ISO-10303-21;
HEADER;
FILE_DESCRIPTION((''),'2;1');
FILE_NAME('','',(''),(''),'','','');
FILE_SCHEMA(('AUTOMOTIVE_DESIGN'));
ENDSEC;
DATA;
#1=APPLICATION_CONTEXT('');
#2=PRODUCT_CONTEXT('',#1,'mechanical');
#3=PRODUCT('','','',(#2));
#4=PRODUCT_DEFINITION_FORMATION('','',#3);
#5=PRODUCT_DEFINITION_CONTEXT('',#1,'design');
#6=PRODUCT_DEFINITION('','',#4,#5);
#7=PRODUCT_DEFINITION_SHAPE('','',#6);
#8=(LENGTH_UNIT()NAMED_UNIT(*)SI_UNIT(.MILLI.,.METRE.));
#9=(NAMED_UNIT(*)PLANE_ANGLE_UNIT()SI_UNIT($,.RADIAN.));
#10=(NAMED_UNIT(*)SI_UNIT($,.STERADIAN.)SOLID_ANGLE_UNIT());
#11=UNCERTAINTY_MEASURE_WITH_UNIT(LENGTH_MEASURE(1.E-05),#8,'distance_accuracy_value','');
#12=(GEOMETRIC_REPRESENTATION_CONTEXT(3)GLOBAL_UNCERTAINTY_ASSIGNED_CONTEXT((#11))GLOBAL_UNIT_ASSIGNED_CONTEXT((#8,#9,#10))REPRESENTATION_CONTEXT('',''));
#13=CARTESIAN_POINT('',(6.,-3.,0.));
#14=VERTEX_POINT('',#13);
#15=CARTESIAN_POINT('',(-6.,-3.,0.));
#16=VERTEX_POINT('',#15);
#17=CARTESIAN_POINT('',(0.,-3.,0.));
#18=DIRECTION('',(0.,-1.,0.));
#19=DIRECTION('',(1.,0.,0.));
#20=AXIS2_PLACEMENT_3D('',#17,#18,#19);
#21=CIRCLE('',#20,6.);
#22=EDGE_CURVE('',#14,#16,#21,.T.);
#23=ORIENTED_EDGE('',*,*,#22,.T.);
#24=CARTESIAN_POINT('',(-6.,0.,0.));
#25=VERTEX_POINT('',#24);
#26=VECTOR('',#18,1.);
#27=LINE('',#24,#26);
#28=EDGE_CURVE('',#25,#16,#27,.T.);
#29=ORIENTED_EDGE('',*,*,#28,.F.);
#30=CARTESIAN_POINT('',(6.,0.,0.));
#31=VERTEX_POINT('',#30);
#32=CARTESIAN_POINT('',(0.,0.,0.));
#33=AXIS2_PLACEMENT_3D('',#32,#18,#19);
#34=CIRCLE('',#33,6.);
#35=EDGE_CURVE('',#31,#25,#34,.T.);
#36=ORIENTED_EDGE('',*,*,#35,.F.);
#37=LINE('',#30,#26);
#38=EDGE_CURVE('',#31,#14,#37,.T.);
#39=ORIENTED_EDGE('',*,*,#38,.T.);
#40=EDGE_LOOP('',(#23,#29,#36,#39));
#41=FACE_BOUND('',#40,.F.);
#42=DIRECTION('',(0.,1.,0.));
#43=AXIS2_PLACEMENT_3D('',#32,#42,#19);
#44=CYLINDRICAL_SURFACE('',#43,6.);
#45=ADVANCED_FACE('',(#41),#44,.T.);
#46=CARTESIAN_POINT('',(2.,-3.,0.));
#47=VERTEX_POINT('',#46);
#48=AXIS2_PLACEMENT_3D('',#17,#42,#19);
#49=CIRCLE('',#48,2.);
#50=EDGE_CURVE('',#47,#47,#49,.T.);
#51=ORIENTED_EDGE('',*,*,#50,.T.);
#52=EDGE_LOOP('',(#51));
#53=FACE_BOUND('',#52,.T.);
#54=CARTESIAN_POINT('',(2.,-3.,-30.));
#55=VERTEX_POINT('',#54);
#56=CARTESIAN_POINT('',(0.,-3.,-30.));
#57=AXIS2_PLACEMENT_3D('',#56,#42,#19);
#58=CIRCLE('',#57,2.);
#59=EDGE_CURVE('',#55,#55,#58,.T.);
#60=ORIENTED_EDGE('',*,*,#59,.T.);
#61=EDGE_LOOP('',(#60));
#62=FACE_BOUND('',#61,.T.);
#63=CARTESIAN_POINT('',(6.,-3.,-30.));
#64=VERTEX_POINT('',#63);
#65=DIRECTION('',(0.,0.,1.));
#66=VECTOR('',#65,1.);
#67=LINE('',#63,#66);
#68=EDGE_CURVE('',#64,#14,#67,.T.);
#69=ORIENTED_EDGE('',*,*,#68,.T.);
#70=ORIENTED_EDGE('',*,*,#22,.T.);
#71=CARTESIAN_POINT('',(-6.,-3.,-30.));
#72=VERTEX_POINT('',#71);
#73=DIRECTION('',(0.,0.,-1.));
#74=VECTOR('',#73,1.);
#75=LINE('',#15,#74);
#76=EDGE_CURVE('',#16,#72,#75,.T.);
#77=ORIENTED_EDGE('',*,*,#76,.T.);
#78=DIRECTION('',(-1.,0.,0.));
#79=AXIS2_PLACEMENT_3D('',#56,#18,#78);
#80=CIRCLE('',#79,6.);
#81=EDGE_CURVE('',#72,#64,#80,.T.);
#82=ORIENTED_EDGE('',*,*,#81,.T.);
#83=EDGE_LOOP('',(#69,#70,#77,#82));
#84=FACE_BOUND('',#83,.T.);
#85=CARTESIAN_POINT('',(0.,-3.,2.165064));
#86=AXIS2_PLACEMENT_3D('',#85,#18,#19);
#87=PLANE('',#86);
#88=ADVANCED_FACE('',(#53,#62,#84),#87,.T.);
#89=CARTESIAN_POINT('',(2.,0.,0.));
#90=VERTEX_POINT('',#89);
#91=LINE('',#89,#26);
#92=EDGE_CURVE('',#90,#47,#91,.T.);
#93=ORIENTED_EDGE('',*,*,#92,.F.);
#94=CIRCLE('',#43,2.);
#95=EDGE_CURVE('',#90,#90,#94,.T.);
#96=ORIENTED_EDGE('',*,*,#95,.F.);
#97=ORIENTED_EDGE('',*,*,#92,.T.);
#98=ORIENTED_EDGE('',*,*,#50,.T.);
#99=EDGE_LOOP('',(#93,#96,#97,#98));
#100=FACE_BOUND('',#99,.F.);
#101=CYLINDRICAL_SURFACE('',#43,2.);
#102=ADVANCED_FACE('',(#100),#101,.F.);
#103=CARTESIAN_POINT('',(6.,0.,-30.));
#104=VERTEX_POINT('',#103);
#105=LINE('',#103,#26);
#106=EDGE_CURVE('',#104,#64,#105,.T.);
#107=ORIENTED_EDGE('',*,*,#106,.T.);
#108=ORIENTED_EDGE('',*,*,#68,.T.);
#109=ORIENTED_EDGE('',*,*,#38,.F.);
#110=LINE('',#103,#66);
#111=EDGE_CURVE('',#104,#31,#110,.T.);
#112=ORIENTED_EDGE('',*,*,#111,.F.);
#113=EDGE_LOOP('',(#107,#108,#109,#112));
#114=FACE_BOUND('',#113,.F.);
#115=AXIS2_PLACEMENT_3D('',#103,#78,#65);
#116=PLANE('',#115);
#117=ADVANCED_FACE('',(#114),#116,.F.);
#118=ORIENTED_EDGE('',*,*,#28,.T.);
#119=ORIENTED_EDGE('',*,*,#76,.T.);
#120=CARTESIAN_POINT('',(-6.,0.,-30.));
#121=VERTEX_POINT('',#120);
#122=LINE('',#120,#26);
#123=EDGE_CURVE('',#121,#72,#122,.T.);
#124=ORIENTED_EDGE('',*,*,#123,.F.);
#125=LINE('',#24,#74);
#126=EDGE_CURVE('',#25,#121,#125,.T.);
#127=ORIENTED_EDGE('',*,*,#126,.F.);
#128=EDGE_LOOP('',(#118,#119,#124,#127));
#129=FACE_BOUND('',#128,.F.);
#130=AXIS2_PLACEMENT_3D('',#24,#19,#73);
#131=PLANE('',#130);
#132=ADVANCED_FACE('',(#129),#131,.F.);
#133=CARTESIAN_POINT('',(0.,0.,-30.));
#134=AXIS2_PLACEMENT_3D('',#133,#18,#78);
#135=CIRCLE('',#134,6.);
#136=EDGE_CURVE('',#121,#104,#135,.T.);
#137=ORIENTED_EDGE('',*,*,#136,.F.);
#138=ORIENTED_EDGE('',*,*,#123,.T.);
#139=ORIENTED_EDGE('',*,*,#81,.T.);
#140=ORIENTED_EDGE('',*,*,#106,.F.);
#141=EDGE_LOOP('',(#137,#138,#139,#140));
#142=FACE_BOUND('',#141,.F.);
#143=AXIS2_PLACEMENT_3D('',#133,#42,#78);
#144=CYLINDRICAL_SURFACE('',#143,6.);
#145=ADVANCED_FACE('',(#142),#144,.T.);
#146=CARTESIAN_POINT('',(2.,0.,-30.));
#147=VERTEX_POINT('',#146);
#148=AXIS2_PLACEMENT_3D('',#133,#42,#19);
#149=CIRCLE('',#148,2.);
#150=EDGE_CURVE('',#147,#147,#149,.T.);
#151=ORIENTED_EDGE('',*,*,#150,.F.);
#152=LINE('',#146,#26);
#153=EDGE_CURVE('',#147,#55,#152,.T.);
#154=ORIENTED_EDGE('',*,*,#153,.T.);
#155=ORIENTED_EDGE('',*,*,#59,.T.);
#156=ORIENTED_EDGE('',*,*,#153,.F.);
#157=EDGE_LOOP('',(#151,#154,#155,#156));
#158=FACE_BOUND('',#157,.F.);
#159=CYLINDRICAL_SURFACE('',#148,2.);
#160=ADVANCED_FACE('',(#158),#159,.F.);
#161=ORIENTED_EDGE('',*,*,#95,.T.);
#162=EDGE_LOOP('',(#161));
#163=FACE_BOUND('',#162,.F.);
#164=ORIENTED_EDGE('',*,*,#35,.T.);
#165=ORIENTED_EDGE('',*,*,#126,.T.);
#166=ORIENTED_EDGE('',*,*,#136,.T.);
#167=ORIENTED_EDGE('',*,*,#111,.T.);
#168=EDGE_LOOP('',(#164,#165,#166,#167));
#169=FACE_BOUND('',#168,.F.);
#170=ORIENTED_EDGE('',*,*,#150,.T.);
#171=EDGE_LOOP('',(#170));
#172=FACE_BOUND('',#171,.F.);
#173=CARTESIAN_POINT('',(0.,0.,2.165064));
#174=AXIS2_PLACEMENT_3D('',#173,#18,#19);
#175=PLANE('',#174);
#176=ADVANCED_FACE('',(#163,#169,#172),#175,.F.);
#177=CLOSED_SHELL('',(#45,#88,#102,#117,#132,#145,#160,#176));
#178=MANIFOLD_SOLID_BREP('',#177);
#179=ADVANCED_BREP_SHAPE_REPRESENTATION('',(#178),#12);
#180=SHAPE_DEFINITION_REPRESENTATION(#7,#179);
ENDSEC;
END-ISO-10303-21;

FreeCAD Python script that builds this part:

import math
import FreeCAD as App
import Part
import Sketcher
from FreeCAD import Vector

doc = App.newDocument("Part")
body = doc.addObject("PartDesign::Body", "Body")

# Sketch on XZ plane
sketch1 = body.newObject("Sketcher::SketchObject", "Sketch")
sketch1.AttachmentSupport = (doc.getObject("XZ_Plane"), [""])
sketch1.MapMode = "FlatFace"
sketch1.addGeometry(Part.ArcOfCircle(Part.Circle(Vector(0, 0, 0), Vector(0, 0, 1), 6), math.radians(0), math.radians(180)), False)
sketch1.addGeometry(Part.LineSegment(Vector(-6, 0, 0), Vector(-6, -30, 0)), False)
sketch1.addGeometry(Part.ArcOfCircle(Part.Circle(Vector(0, -30, 0), Vector(0, 0, 1), 6), math.radians(180), math.radians(360)), False)
sketch1.addGeometry(Part.LineSegment(Vector(6, -30, 0), Vector(6, 0, 0)), False)
sketch1.addGeometry(Part.Circle(Vector(0, -30, 0), Vector(0, 0, 1), 2), False)
sketch1.addGeometry(Part.Circle(Vector(0, 0, 0), Vector(0, 0, 1), 2), False)
sketch1.addConstraint(Sketcher.Constraint("Tangent", 0, 2, 1, 1))
sketch1.addConstraint(Sketcher.Constraint("Tangent", 1, 2, 2, 1))
sketch1.addConstraint(Sketcher.Constraint("Tangent", 2, 2, 3, 1))
sketch1.addConstraint(Sketcher.Constraint("Tangent", 3, 2, 0, 1))
sketch1.addConstraint(Sketcher.Constraint("Vertical", 1))
sketch1.addConstraint(Sketcher.Constraint("Vertical", 3))
sketch1.addConstraint(Sketcher.Constraint("Coincident", 0, 3, -1, 1))
sketch1.addConstraint(Sketcher.Constraint("Coincident", 5, 3, -1, 1))
sketch1.addConstraint(Sketcher.Constraint("Coincident", 4, 3, 2, 3))
sketch1.addConstraint(Sketcher.Constraint("Equal", 4, 5))
sketch1.addConstraint(Sketcher.Constraint("Diameter", 4, 4.0))
sketch1.addConstraint(Sketcher.Constraint("Radius", 0, 6.0))
sketch1.addConstraint(Sketcher.Constraint("DistanceY", 1, 2, 1, 1, 30.0))
pad1 = body.newObject("PartDesign::Pad", "Pad")
pad1.Profile = sketch1
pad1.Length = 3

doc.recompute()
